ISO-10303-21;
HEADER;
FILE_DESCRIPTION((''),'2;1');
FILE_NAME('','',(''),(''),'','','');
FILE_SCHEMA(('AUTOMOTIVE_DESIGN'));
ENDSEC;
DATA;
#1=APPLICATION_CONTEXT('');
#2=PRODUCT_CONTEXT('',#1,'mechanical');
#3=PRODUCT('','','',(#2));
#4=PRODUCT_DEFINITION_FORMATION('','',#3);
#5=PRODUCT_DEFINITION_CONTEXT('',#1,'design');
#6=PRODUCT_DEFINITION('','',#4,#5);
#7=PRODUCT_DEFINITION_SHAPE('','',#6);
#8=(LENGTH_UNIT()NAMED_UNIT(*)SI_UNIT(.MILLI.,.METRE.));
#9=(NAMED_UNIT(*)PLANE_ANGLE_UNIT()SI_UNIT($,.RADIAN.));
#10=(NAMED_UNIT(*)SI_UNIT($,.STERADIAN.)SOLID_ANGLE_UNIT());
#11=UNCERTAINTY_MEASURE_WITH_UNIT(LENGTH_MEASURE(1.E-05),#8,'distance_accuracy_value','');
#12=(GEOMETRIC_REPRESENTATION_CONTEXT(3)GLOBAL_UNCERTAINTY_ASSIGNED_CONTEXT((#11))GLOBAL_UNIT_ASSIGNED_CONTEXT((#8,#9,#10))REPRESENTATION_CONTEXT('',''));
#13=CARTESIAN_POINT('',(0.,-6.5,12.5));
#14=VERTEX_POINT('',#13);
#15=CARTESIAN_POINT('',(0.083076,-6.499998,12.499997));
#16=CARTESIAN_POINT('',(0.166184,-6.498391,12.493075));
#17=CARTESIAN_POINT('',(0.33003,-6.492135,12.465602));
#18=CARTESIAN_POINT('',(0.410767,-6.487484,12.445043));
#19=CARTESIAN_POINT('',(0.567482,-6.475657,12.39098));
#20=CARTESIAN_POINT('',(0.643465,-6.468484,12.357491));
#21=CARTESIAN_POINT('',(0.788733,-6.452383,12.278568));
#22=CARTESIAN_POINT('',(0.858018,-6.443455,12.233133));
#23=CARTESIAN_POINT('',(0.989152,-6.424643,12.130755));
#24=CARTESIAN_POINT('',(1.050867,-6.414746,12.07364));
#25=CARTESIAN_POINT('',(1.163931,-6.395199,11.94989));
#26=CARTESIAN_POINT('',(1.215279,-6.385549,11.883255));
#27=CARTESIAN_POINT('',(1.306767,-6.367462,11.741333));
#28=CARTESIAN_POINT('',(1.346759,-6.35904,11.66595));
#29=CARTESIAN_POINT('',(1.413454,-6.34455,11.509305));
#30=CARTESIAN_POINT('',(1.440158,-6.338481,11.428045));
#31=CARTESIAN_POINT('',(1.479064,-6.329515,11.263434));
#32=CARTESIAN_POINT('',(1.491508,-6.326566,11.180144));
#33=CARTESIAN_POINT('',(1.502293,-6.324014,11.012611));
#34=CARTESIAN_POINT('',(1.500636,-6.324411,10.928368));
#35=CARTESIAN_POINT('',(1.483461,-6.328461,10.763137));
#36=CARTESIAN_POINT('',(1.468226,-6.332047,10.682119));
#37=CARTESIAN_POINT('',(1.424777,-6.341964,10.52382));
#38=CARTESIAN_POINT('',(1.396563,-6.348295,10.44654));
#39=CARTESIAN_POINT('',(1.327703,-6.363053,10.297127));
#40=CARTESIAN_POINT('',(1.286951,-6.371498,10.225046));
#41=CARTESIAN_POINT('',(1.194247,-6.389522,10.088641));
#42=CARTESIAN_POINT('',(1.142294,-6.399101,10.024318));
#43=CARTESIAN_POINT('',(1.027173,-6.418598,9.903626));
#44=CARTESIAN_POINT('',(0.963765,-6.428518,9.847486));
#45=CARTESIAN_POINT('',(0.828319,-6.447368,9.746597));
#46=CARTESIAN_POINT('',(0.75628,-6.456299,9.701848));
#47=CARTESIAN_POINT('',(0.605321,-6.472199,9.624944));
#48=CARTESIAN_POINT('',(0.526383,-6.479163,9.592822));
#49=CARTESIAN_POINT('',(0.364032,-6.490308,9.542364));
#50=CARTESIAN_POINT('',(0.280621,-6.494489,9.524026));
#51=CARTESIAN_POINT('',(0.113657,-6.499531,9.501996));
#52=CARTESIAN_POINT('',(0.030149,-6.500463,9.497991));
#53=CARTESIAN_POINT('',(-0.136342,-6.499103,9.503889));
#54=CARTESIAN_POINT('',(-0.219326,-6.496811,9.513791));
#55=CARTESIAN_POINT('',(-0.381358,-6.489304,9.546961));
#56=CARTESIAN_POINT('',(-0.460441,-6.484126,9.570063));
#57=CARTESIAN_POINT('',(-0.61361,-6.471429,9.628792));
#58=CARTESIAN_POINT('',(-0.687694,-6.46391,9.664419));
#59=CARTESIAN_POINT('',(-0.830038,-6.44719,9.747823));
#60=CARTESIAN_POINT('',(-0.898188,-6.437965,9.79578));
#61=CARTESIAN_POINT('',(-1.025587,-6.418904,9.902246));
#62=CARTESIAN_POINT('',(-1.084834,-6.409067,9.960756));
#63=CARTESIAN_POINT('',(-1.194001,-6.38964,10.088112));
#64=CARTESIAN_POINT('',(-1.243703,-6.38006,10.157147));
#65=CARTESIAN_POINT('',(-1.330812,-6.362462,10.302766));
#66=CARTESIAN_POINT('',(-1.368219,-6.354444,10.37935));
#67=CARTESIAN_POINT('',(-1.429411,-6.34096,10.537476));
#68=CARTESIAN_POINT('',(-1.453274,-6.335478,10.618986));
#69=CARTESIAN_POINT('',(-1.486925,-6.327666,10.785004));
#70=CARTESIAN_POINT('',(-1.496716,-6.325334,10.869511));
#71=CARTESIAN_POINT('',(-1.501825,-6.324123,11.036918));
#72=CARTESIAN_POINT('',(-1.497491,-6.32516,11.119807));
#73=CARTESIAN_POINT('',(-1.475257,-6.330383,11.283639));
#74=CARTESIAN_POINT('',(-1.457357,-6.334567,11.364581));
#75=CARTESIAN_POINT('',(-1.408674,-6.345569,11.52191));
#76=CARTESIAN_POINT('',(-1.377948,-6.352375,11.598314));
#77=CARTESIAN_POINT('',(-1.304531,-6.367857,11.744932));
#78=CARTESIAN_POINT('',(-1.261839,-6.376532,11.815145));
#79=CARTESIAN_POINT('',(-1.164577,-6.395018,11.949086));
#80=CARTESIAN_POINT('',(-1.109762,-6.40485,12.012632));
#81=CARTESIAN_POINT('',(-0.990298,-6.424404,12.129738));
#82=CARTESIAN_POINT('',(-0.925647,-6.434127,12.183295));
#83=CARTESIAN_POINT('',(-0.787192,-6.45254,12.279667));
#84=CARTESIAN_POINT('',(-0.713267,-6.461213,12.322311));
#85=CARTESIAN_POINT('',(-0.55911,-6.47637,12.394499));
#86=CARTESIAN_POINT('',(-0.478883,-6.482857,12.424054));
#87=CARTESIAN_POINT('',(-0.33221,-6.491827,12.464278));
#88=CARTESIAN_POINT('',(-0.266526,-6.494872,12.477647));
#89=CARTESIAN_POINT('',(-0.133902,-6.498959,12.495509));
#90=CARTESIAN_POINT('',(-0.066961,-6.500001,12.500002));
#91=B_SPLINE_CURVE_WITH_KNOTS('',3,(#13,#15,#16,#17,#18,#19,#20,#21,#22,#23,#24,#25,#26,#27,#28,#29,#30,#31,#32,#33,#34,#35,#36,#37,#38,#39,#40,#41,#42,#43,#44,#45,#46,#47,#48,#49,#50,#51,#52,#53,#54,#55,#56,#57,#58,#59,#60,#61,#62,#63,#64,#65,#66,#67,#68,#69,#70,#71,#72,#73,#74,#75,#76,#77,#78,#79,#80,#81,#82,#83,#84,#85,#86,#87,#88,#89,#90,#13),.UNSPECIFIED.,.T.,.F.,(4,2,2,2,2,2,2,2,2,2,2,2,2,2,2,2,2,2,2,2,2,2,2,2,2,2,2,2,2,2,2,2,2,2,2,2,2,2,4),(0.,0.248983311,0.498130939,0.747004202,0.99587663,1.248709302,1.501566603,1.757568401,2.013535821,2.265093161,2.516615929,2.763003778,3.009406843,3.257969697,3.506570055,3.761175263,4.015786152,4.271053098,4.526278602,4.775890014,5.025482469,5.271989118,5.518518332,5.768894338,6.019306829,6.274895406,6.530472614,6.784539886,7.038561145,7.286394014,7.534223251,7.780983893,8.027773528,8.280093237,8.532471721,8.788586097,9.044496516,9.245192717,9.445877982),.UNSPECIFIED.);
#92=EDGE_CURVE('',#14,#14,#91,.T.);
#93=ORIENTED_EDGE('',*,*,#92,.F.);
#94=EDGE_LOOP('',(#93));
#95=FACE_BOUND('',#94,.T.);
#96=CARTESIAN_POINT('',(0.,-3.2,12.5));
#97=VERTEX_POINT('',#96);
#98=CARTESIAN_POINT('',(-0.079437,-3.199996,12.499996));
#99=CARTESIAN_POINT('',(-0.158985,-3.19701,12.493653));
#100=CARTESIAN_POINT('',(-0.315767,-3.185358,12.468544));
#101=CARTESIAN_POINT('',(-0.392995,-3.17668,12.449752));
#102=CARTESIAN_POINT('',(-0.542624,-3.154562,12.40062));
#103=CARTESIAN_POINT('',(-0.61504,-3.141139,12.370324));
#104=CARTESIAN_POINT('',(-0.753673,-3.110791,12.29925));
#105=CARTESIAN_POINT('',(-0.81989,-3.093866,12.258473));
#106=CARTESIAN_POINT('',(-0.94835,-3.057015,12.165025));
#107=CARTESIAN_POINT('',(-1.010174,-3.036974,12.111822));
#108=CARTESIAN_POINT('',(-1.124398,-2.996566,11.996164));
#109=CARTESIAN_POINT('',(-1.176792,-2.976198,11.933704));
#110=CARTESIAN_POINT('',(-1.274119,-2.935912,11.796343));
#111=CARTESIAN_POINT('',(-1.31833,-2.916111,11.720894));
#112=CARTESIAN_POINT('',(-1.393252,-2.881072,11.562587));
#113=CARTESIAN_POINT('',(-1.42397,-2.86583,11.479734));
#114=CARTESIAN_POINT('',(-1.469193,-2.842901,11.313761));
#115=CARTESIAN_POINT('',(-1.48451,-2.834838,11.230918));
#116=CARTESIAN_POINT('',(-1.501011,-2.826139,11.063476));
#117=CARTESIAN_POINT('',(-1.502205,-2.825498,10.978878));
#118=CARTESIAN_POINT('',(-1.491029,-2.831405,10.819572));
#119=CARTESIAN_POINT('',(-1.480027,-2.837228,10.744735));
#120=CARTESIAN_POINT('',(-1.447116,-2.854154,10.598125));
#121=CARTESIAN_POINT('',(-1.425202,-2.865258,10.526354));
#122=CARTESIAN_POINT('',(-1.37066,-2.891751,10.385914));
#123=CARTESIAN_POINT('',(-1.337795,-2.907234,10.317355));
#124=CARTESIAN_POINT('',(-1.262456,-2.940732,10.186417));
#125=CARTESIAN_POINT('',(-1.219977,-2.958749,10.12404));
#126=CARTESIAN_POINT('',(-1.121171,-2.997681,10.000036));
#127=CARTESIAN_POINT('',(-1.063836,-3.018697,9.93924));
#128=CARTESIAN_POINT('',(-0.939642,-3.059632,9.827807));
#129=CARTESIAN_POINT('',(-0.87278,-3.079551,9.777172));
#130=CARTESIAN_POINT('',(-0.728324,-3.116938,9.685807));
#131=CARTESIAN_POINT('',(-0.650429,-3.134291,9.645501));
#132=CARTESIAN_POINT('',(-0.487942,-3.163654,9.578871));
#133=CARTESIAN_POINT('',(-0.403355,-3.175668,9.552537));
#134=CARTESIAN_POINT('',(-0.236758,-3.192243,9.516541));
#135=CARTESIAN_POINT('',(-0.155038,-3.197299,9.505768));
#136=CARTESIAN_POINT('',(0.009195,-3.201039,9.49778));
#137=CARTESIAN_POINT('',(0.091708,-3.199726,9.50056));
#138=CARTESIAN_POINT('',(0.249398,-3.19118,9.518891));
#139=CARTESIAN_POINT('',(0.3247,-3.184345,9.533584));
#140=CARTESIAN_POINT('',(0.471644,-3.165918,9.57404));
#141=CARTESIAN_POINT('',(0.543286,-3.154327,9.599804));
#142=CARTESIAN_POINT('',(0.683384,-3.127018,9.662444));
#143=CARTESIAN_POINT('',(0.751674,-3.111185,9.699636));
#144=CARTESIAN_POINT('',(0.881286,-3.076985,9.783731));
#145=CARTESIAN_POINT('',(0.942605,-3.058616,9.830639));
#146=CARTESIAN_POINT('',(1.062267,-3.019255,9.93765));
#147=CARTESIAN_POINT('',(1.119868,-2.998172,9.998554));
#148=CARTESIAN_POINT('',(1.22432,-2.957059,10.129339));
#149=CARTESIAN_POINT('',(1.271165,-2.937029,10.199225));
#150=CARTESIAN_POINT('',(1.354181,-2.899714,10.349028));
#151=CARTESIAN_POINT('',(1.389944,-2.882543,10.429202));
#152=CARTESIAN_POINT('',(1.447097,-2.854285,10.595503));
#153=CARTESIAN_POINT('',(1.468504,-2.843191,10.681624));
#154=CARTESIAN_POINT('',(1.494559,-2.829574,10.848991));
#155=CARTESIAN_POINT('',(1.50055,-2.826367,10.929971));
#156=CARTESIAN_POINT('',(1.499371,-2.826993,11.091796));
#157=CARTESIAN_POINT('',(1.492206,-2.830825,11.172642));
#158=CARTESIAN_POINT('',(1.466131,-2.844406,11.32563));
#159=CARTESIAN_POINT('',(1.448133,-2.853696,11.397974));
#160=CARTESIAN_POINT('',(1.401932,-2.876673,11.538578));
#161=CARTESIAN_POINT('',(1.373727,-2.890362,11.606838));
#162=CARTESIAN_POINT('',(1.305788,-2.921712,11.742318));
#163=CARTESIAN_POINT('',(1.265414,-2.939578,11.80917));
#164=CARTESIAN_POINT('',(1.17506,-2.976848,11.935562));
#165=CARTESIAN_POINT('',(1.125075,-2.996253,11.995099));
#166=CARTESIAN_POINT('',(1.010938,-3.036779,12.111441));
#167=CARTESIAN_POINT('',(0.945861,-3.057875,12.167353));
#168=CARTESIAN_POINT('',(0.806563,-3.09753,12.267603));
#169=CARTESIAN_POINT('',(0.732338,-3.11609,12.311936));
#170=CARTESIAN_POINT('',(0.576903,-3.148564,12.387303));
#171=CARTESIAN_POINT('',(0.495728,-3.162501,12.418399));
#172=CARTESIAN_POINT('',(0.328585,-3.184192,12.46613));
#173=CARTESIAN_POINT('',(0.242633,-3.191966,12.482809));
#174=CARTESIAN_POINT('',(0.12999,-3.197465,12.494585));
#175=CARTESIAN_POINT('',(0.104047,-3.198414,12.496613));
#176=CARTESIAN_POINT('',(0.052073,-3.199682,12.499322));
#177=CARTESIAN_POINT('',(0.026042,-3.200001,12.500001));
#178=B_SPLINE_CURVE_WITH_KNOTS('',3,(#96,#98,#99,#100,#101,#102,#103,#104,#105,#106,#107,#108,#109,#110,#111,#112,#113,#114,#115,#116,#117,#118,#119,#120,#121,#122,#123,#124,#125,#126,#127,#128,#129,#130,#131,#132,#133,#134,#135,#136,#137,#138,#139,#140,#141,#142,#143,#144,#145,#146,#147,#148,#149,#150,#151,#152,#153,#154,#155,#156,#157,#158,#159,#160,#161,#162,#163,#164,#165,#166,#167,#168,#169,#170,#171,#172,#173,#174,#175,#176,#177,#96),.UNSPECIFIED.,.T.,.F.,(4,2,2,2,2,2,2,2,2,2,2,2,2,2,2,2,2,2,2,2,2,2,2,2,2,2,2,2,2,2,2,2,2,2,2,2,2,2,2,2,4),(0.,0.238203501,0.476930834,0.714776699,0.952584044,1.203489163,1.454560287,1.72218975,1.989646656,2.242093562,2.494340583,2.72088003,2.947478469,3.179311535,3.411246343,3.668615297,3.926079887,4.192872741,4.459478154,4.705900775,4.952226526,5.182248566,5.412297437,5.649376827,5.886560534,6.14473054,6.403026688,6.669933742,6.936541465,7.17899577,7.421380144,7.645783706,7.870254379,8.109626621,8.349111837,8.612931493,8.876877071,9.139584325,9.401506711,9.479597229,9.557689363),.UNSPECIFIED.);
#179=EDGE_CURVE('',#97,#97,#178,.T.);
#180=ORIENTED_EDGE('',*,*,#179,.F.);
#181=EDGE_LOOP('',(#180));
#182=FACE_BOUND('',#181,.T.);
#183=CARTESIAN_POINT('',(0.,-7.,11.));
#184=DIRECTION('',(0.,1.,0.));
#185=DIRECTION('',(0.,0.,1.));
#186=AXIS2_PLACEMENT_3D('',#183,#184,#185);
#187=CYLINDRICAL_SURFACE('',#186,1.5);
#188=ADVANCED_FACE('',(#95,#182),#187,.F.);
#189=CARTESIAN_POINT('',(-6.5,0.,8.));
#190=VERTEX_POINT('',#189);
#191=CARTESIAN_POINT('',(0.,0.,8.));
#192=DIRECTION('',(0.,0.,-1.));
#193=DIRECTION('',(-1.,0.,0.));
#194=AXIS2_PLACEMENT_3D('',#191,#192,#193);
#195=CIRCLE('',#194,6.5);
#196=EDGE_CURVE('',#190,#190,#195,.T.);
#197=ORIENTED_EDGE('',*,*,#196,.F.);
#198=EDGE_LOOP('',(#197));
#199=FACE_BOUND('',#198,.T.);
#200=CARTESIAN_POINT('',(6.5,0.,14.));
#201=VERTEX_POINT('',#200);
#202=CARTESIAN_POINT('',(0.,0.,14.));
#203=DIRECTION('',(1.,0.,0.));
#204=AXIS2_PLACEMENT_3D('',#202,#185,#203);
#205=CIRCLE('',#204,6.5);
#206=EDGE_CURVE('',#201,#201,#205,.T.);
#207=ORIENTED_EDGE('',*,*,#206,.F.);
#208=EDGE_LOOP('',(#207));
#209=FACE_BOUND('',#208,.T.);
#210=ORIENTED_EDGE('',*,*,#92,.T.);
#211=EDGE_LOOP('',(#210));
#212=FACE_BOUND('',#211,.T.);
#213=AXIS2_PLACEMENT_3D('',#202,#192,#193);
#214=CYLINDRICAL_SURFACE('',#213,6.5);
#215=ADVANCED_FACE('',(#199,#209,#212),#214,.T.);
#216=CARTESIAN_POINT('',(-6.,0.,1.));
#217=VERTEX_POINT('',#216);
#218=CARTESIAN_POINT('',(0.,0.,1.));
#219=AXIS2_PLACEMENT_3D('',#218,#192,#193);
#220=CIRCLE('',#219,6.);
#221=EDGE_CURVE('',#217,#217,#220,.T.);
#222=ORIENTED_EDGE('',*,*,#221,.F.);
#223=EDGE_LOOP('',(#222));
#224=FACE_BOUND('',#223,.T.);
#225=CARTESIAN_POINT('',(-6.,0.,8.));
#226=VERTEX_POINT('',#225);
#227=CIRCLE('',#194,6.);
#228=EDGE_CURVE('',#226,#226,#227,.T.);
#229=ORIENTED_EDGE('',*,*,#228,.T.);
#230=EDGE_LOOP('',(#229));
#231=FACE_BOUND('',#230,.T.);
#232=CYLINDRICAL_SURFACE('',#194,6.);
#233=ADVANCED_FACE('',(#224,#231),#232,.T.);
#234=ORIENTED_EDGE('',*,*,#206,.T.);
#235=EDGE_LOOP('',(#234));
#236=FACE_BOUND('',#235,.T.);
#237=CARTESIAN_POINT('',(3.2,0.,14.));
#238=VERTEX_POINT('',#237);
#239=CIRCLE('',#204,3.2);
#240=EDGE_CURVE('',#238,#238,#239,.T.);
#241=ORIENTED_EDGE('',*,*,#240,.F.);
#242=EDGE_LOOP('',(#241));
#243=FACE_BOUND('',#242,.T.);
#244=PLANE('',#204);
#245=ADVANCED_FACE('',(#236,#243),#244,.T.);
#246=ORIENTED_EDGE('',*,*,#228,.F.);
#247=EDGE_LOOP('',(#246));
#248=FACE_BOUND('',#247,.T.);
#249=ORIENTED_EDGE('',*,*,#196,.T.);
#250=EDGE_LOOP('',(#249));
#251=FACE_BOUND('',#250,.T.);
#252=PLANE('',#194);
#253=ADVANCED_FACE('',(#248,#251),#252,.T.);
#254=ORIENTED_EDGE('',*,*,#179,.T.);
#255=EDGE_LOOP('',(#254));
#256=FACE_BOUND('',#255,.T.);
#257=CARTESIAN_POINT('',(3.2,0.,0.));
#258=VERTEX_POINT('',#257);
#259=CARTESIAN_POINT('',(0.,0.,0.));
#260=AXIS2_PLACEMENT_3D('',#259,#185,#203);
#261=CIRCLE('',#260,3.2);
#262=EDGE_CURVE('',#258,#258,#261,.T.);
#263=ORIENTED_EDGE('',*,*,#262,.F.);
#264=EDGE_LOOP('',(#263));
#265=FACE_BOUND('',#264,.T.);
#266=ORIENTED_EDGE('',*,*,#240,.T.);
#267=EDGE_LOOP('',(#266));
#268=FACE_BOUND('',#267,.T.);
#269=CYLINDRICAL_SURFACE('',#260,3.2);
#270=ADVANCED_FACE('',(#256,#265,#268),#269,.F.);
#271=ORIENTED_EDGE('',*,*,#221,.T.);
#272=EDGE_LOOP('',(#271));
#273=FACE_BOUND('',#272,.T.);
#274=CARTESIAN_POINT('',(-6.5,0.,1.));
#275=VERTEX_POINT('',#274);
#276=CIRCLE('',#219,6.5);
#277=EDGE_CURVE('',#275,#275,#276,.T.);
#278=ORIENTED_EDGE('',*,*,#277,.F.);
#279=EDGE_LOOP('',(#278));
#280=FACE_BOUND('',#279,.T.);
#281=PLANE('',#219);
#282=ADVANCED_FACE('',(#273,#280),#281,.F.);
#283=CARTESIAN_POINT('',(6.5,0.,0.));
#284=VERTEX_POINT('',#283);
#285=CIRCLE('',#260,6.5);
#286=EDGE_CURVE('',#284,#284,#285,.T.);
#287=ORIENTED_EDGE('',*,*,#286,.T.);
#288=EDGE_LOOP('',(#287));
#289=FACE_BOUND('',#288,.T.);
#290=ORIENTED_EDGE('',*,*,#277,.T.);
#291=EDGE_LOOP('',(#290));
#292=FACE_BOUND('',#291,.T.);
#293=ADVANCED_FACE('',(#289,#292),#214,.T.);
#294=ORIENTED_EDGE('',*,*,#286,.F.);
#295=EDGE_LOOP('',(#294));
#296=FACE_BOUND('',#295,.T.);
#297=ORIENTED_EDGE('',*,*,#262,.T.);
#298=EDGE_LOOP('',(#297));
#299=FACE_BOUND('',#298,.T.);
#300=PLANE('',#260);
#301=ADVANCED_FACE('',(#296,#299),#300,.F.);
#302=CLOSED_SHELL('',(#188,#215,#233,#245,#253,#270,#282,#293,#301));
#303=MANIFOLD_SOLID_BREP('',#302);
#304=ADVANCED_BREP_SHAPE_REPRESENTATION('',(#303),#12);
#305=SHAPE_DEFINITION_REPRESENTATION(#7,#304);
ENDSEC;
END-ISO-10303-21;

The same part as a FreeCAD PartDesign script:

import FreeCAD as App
import Part
import Sketcher

V = App.Vector

doc = App.newDocument("Part")
body = doc.addObject("PartDesign::Body", "Body")

sketch1 = body.newObject("Sketcher::SketchObject", "Sketch")
sketch1.AttachmentSupport = (doc.getObject("XY_Plane"), [""])
sketch1.MapMode = "FlatFace"
sketch1.addGeometry(Part.Circle(V(0, 0, 0), V(0, 0, 1), 6.5), False)
sketch1.addConstraint(Sketcher.Constraint("Coincident", 0, 3, -1, 1))
sketch1.addConstraint(Sketcher.Constraint("Diameter", 0, 13.0))
pad1 = body.newObject("PartDesign::Pad", "Pad")
pad1.Profile = sketch1
pad1.Length = 14

sketch2 = body.newObject("Sketcher::SketchObject", "Sketch001")
sketch2.AttachmentSupport = (doc.getObject("XY_Plane"), [""])
sketch2.MapMode = "FlatFace"
sketch2.AttachmentOffset = App.Placement(V(0, 0, 14), App.Rotation())
sketch2.addGeometry(Part.Circle(V(0, 0, 0), V(0, 0, 1), 3.2), False)
sketch2.addConstraint(Sketcher.Constraint("Coincident", 0, 3, -1, 1))
sketch2.addConstraint(Sketcher.Constraint("Diameter", 0, 6.4))
pocket1 = body.newObject("PartDesign::Pocket", "Pocket")
pocket1.Profile = sketch2
pocket1.Type = "ThroughAll"

sketch3 = body.newObject("Sketcher::SketchObject", "Sketch002")
sketch3.AttachmentSupport = (doc.getObject("XY_Plane"), [""])
sketch3.MapMode = "FlatFace"
sketch3.AttachmentOffset = App.Placement(V(0, 0, 1), App.Rotation())
sketch3.addGeometry(Part.Circle(V(0, 0, 0), V(0, 0, 1), 6.5), False)
sketch3.addGeometry(Part.Circle(V(0, 0, 0), V(0, 0, 1), 6), False)
sketch3.addConstraint(Sketcher.Constraint("Coincident", 0, 3, -1, 1))
sketch3.addConstraint(Sketcher.Constraint("Coincident", 1, 3, -1, 1))
sketch3.addConstraint(Sketcher.Constraint("Diameter", 0, 13.0))
sketch3.addConstraint(Sketcher.Constraint("Diameter", 1, 12.0))
pocket2 = body.newObject("PartDesign::Pocket", "Pocket001")
pocket2.Profile = sketch3
pocket2.Length = 7
pocket2.Reversed = True

sketch4 = body.newObject("Sketcher::SketchObject", "Sketch003")
sketch4.AttachmentSupport = (doc.getObject("XZ_Plane"), [""])
sketch4.MapMode = "FlatFace"
sketch4.addGeometry(Part.Circle(V(0, 11, 0), V(0, 0, 1), 1.5), False)
sketch4.addConstraint(Sketcher.Constraint("PointOnObject", 0, 3, -2))
sketch4.addConstraint(Sketcher.Constraint("Diameter", 0, 3.0))
sketch4.addConstraint(Sketcher.Constraint("DistanceY", -1, 1, 0, 3, 11.0))
pocket3 = body.newObject("PartDesign::Pocket", "Pocket002")
pocket3.Profile = sketch4
pocket3.Length = 7
pocket3.Reversed = True

doc.recompute()
